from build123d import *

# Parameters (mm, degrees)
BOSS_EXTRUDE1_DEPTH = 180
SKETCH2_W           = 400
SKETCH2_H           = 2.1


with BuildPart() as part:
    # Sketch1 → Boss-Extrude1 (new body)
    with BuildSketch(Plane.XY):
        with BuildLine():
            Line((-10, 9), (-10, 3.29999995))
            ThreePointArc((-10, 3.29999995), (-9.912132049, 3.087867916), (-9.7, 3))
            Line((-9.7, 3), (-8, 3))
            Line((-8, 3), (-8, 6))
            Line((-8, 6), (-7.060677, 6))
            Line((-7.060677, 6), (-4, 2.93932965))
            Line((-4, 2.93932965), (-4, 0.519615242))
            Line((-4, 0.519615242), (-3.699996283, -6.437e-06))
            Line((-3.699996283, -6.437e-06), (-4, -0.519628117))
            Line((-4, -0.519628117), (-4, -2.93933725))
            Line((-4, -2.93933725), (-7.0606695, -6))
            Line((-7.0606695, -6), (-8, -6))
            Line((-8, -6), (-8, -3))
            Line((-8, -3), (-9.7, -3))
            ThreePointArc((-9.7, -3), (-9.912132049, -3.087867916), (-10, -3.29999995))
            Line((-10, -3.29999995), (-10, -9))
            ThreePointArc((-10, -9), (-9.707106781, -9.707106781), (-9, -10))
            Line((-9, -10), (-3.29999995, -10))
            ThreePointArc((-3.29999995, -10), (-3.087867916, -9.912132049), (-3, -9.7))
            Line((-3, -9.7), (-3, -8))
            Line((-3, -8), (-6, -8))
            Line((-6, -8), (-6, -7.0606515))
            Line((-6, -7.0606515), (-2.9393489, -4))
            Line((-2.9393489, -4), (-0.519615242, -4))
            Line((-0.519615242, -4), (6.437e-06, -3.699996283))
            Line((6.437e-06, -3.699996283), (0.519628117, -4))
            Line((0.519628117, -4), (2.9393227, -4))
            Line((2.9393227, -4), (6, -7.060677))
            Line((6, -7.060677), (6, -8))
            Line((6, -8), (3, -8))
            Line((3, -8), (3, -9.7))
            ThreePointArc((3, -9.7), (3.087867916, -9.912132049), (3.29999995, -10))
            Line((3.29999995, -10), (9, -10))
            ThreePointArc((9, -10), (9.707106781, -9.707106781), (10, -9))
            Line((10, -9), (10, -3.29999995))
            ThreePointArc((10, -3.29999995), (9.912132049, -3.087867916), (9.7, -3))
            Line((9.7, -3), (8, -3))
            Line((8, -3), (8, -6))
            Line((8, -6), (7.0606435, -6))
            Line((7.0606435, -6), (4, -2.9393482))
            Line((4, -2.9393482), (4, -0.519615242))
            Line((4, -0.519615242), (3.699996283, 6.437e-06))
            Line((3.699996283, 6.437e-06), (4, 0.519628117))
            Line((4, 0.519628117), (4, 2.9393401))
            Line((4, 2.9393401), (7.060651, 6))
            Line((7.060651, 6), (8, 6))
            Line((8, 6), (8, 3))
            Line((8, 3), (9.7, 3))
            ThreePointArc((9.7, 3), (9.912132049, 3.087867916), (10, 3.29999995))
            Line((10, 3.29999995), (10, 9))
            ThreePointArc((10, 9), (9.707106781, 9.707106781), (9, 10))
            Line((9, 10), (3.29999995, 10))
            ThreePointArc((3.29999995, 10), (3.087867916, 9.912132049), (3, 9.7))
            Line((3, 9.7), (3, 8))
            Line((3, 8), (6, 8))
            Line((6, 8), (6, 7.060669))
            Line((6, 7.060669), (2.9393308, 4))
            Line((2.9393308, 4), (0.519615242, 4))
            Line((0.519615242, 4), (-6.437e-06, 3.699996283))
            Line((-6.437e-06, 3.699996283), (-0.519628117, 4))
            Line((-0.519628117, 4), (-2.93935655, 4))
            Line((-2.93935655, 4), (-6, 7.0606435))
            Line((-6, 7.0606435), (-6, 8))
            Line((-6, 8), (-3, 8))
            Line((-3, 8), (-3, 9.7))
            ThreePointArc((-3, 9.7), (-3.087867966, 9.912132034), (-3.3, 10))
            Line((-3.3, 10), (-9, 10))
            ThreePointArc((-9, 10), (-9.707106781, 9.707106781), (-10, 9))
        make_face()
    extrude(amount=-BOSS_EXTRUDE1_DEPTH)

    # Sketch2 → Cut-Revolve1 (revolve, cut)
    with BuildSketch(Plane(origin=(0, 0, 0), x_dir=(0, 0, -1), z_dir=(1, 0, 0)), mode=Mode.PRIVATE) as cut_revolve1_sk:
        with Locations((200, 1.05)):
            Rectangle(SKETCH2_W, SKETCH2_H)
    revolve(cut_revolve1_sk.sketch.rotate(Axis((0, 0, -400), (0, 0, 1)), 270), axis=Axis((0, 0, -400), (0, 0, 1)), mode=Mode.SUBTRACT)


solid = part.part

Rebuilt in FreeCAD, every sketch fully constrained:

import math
import FreeCAD as App
import Part
import Sketcher
from FreeCAD import Vector
Q = App.Units.Quantity


def add_polygon(sketch, points):
    """Adds a closed chain of lines whose ends are joined by coincident constraints."""
    first, n = sketch.GeometryCount, len(points)
    for a, b in zip(points, points[1:] + points[:1]):
        sketch.addGeometry(Part.LineSegment(App.Vector(*a, 0), App.Vector(*b, 0)), False)
    for i in range(n):
        sketch.addConstraint(Sketcher.Constraint("Coincident", first + i, 2, first + (i + 1) % n, 1))

doc = App.newDocument("Part")
params = doc.addObject("Spreadsheet::Sheet", "Params")
for row, (alias, value) in enumerate([
    ("sketch1_radius", "1 mm"),
    ("sketch1_radius2", "0.3 mm"),
    ("sketch1_width", "3 mm"),
    ("sketch1_width2", "1.7 mm"),
    ("sketch1_width3", "5.7 mm"),
    ("pad1_length", "180 mm"),
    ("sketch2_height", "400 mm"),
    ("sketch2_width", "2.1 mm"),
    ("groove_angle", "360 deg"),
], start=1):
    params.set(f"A{row}", alias)
    params.set(f"B{row}", "=" + value)
    params.setAlias(f"B{row}", alias)

body = doc.addObject("PartDesign::Body", "Body")

sketch1 = doc.addObject("Sketcher::SketchObject", "Sketch")
body.addObject(sketch1)
sketch1.AttachmentSupport = (doc.XY_Plane, [""])
sketch1.MapMode = "FlatFace"
sketch1.addGeometry([
    Part.LineSegment(Vector(-10, 9, 0), Vector(-10, 3.3, 0)),
    Part.ArcOfCircle(Part.Circle(Vector(-9.7, 3.3, 0), Vector(0, 0, 1), 0.3), math.radians(180), math.radians(270)),
    Part.LineSegment(Vector(-9.7, 3, 0), Vector(-8, 3, 0)),
    Part.LineSegment(Vector(-8, 3, 0), Vector(-8, 6, 0)),
    Part.LineSegment(Vector(-8, 6, 0), Vector(-7.06, 6, 0)),
    Part.LineSegment(Vector(-7.06, 6, 0), Vector(-4, 2.94, 0)),
    Part.LineSegment(Vector(-4, 2.94, 0), Vector(-4, 0.52, 0)),
    Part.LineSegment(Vector(-4, 0.52, 0), Vector(-3.7, 0, 0)),
    Part.LineSegment(Vector(-3.7, 0, 0), Vector(-4, -0.52, 0)),
    Part.LineSegment(Vector(-4, -0.52, 0), Vector(-4, -2.94, 0)),
    Part.LineSegment(Vector(-4, -2.94, 0), Vector(-7.06, -6, 0)),
    Part.LineSegment(Vector(-7.06, -6, 0), Vector(-8, -6, 0)),
    Part.LineSegment(Vector(-8, -6, 0), Vector(-8, -3, 0)),
    Part.LineSegment(Vector(-8, -3, 0), Vector(-9.7, -3, 0)),
    Part.ArcOfCircle(Part.Circle(Vector(-9.7, -3.3, 0), Vector(0, 0, 1), 0.3), math.radians(90), math.radians(180)),
    Part.LineSegment(Vector(-10, -3.3, 0), Vector(-10, -9, 0)),
    Part.ArcOfCircle(Part.Circle(Vector(-9, -9, 0), Vector(0, 0, 1), 1), math.radians(-180), math.radians(-90)),
    Part.LineSegment(Vector(-9, -10, 0), Vector(-3.3, -10, 0)),
    Part.ArcOfCircle(Part.Circle(Vector(-3.3, -9.7, 0), Vector(0, 0, 1), 0.3), math.radians(-90), math.radians(0)),
    Part.LineSegment(Vector(-3, -9.7, 0), Vector(-3, -8, 0)),
    Part.LineSegment(Vector(-3, -8, 0), Vector(-6, -8, 0)),
    Part.LineSegment(Vector(-6, -8, 0), Vector(-6, -7.06, 0)),
    Part.LineSegment(Vector(-6, -7.06, 0), Vector(-2.94, -4, 0)),
    Part.LineSegment(Vector(-2.94, -4, 0), Vector(-0.52, -4, 0)),
    Part.LineSegment(Vector(-0.52, -4, 0), Vector(0, -3.7, 0)),
    Part.LineSegment(Vector(0, -3.7, 0), Vector(0.52, -4, 0)),
    Part.LineSegment(Vector(0.52, -4, 0), Vector(2.94, -4, 0)),
    Part.LineSegment(Vector(2.94, -4, 0), Vector(6, -7.06, 0)),
    Part.LineSegment(Vector(6, -7.06, 0), Vector(6, -8, 0)),
    Part.LineSegment(Vector(6, -8, 0), Vector(3, -8, 0)),
    Part.LineSegment(Vector(3, -8, 0), Vector(3, -9.7, 0)),
    Part.ArcOfCircle(Part.Circle(Vector(3.3, -9.7, 0), Vector(0, 0, 1), 0.3), math.radians(180), math.radians(270)),
    Part.LineSegment(Vector(3.3, -10, 0), Vector(9, -10, 0)),
    Part.ArcOfCircle(Part.Circle(Vector(9, -9, 0), Vector(0, 0, 1), 1), math.radians(-90), math.radians(0)),
    Part.LineSegment(Vector(10, -9, 0), Vector(10, -3.3, 0)),
    Part.ArcOfCircle(Part.Circle(Vector(9.7, -3.3, 0), Vector(0, 0, 1), 0.3), math.radians(0), math.radians(90)),
    Part.LineSegment(Vector(9.7, -3, 0), Vector(8, -3, 0)),
    Part.LineSegment(Vector(8, -3, 0), Vector(8, -6, 0)),
    Part.LineSegment(Vector(8, -6, 0), Vector(7.06, -6, 0)),
    Part.LineSegment(Vector(7.06, -6, 0), Vector(4, -2.94, 0)),
    Part.LineSegment(Vector(4, -2.94, 0), Vector(4, -0.52, 0)),
    Part.LineSegment(Vector(4, -0.52, 0), Vector(3.7, 0, 0)),
    Part.LineSegment(Vector(3.7, 0, 0), Vector(4, 0.52, 0)),
    Part.LineSegment(Vector(4, 0.52, 0), Vector(4, 2.94, 0)),
    Part.LineSegment(Vector(4, 2.94, 0), Vector(7.06, 6, 0)),
    Part.LineSegment(Vector(7.06, 6, 0), Vector(8, 6, 0)),
    Part.LineSegment(Vector(8, 6, 0), Vector(8, 3, 0)),
    Part.LineSegment(Vector(8, 3, 0), Vector(9.7, 3, 0)),
    Part.ArcOfCircle(Part.Circle(Vector(9.7, 3.3, 0), Vector(0, 0, 1), 0.3), math.radians(-90), math.radians(0)),
    Part.LineSegment(Vector(10, 3.3, 0), Vector(10, 9, 0)),
    Part.ArcOfCircle(Part.Circle(Vector(9, 9, 0), Vector(0, 0, 1), 1), math.radians(0), math.radians(90)),
    Part.LineSegment(Vector(9, 10, 0), Vector(3.3, 10, 0)),
    Part.ArcOfCircle(Part.Circle(Vector(3.3, 9.7, 0), Vector(0, 0, 1), 0.3), math.radians(90), math.radians(180)),
    Part.LineSegment(Vector(3, 9.7, 0), Vector(3, 8, 0)),
    Part.LineSegment(Vector(3, 8, 0), Vector(6, 8, 0)),
    Part.LineSegment(Vector(6, 8, 0), Vector(6, 7.06, 0)),
    Part.LineSegment(Vector(6, 7.06, 0), Vector(2.94, 4, 0)),
    Part.LineSegment(Vector(2.94, 4, 0), Vector(0.52, 4, 0)),
    Part.LineSegment(Vector(0.52, 4, 0), Vector(0, 3.7, 0)),
    Part.LineSegment(Vector(0, 3.7, 0), Vector(-0.52, 4, 0)),
    Part.LineSegment(Vector(-0.52, 4, 0), Vector(-2.94, 4, 0)),
    Part.LineSegment(Vector(-2.94, 4, 0), Vector(-6, 7.06, 0)),
    Part.LineSegment(Vector(-6, 7.06, 0), Vector(-6, 8, 0)),
    Part.LineSegment(Vector(-6, 8, 0), Vector(-3, 8, 0)),
    Part.LineSegment(Vector(-3, 8, 0), Vector(-3, 9.7, 0)),
    Part.ArcOfCircle(Part.Circle(Vector(-3.3, 9.7, 0), Vector(0, 0, 1), 0.3), math.radians(0), math.radians(90)),
    Part.LineSegment(Vector(-3.3, 10, 0), Vector(-9, 10, 0)),
    Part.ArcOfCircle(Part.Circle(Vector(-9, 9, 0), Vector(0, 0, 1), 1), math.radians(90), math.radians(180)),
], False)
sketch1.addConstraint([
    Sketcher.Constraint("Tangent", 0, 2, 1, 1),
    Sketcher.Constraint("Tangent", 1, 2, 2, 1),
    Sketcher.Constraint("Coincident", 2, 2, 3, 1),
    Sketcher.Constraint("Coincident", 3, 2, 4, 1),
    Sketcher.Constraint("Coincident", 4, 2, 5, 1),
    Sketcher.Constraint("Coincident", 5, 2, 6, 1),
    Sketcher.Constraint("Coincident", 6, 2, 7, 1),
    Sketcher.Constraint("Coincident", 7, 2, 8, 1),
    Sketcher.Constraint("Coincident", 8, 2, 9, 1),
    Sketcher.Constraint("Coincident", 9, 2, 10, 1),
    Sketcher.Constraint("Coincident", 10, 2, 11, 1),
    Sketcher.Constraint("Coincident", 11, 2, 12, 1),
    Sketcher.Constraint("Coincident", 12, 2, 13, 1),
    Sketcher.Constraint("Tangent", 13, 2, 14, 1),
    Sketcher.Constraint("Tangent", 14, 2, 15, 1),
    Sketcher.Constraint("Tangent", 15, 2, 16, 1),
    Sketcher.Constraint("Tangent", 16, 2, 17, 1),
    Sketcher.Constraint("Tangent", 17, 2, 18, 1),
    Sketcher.Constraint("Tangent", 18, 2, 19, 1),
    Sketcher.Constraint("Coincident", 19, 2, 20, 1),
    Sketcher.Constraint("Coincident", 20, 2, 21, 1),
    Sketcher.Constraint("Coincident", 21, 2, 22, 1),
    Sketcher.Constraint("Coincident", 22, 2, 23, 1),
    Sketcher.Constraint("Coincident", 23, 2, 24, 1),
    Sketcher.Constraint("Coincident", 24, 2, 25, 1),
    Sketcher.Constraint("Coincident", 25, 2, 26, 1),
    Sketcher.Constraint("Coincident", 26, 2, 27, 1),
    Sketcher.Constraint("Coincident", 27, 2, 28, 1),
    Sketcher.Constraint("Coincident", 28, 2, 29, 1),
    Sketcher.Constraint("Coincident", 29, 2, 30, 1),
    Sketcher.Constraint("Tangent", 30, 2, 31, 1),
    Sketcher.Constraint("Tangent", 31, 2, 32, 1),
    Sketcher.Constraint("Tangent", 32, 2, 33, 1),
    Sketcher.Constraint("Tangent", 33, 2, 34, 1),
    Sketcher.Constraint("Tangent", 34, 2, 35, 1),
    Sketcher.Constraint("Tangent", 35, 2, 36, 1),
    Sketcher.Constraint("Coincident", 36, 2, 37, 1),
    Sketcher.Constraint("Coincident", 37, 2, 38, 1),
    Sketcher.Constraint("Coincident", 38, 2, 39, 1),
    Sketcher.Constraint("Coincident", 39, 2, 40, 1),
    Sketcher.Constraint("Coincident", 40, 2, 41, 1),
    Sketcher.Constraint("Coincident", 41, 2, 42, 1),
    Sketcher.Constraint("Coincident", 42, 2, 43, 1),
    Sketcher.Constraint("Coincident", 43, 2, 44, 1),
    Sketcher.Constraint("Coincident", 44, 2, 45, 1),
    Sketcher.Constraint("Coincident", 45, 2, 46, 1),
    Sketcher.Constraint("Coincident", 46, 2, 47, 1),
    Sketcher.Constraint("Tangent", 47, 2, 48, 1),
    Sketcher.Constraint("Tangent", 48, 2, 49, 1),
    Sketcher.Constraint("Tangent", 49, 2, 50, 1),
    Sketcher.Constraint("Tangent", 50, 2, 51, 1),
    Sketcher.Constraint("Tangent", 51, 2, 52, 1),
    Sketcher.Constraint("Tangent", 52, 2, 53, 1),
    Sketcher.Constraint("Coincident", 53, 2, 54, 1),
    Sketcher.Constraint("Coincident", 54, 2, 55, 1),
    Sketcher.Constraint("Coincident", 55, 2, 56, 1),
    Sketcher.Constraint("Coincident", 56, 2, 57, 1),
    Sketcher.Constraint("Coincident", 57, 2, 58, 1),
    Sketcher.Constraint("Coincident", 58, 2, 59, 1),
    Sketcher.Constraint("Coincident", 59, 2, 60, 1),
    Sketcher.Constraint("Coincident", 60, 2, 61, 1),
    Sketcher.Constraint("Coincident", 61, 2, 62, 1),
    Sketcher.Constraint("Coincident", 62, 2, 63, 1),
    Sketcher.Constraint("Coincident", 63, 2, 64, 1),
    Sketcher.Constraint("Tangent", 64, 2, 65, 1),
    Sketcher.Constraint("Tangent", 65, 2, 66, 1),
    Sketcher.Constraint("Tangent", 66, 2, 67, 1),
    Sketcher.Constraint("Tangent", 67, 2, 0, 1),
    Sketcher.Constraint("Vertical", 0),
    Sketcher.Constraint("Horizontal", 2),
    Sketcher.Constraint("Vertical", 3),
    Sketcher.Constraint("Horizontal", 4),
    Sketcher.Constraint("Vertical", 6),
    Sketcher.Constraint("Vertical", 9),
    Sketcher.Constraint("Horizontal", 11),
    Sketcher.Constraint("Vertical", 12),
    Sketcher.Constraint("Horizontal", 13),
    Sketcher.Constraint("Vertical", 15),
    Sketcher.Constraint("Horizontal", 17),
    Sketcher.Constraint("Vertical", 19),
    Sketcher.Constraint("Horizontal", 20),
    Sketcher.Constraint("Vertical", 21),
    Sketcher.Constraint("Horizontal", 23),
    Sketcher.Constraint("Horizontal", 26),
    Sketcher.Constraint("Vertical", 28),
    Sketcher.Constraint("Horizontal", 29),
    Sketcher.Constraint("Vertical", 30),
    Sketcher.Constraint("Horizontal", 32),
    Sketcher.Constraint("Vertical", 34),
    Sketcher.Constraint("Horizontal", 36),
    Sketcher.Constraint("Vertical", 37),
    Sketcher.Constraint("Horizontal", 38),
    Sketcher.Constraint("Vertical", 40),
    Sketcher.Constraint("Vertical", 43),
    Sketcher.Constraint("Horizontal", 45),
    Sketcher.Constraint("Vertical", 46),
    Sketcher.Constraint("Horizontal", 47),
    Sketcher.Constraint("Vertical", 49),
    Sketcher.Constraint("Horizontal", 51),
    Sketcher.Constraint("Vertical", 53),
    Sketcher.Constraint("Horizontal", 54),
    Sketcher.Constraint("Vertical", 55),
    Sketcher.Constraint("Horizontal", 57),
    Sketcher.Constraint("Horizontal", 60),
    Sketcher.Constraint("Vertical", 62),
    Sketcher.Constraint("Horizontal", 63),
    Sketcher.Constraint("Vertical", 64),
    Sketcher.Constraint("Horizontal", 66),
    Sketcher.Constraint("Equal", 1, 14),
    Sketcher.Constraint("Equal", 14, 18),
    Sketcher.Constraint("Equal", 18, 31),
    Sketcher.Constraint("Equal", 16, 33),
    Sketcher.Constraint("Equal", 31, 35),
    Sketcher.Constraint("Equal", 35, 48),
    Sketcher.Constraint("Equal", 33, 50),
    Sketcher.Constraint("Equal", 48, 52),
    Sketcher.Constraint("Equal", 52, 65),
    Sketcher.Constraint("Equal", 50, 67),
    Sketcher.Constraint("Symmetric", 1, 3, 35, 3, -1, 1),
    Sketcher.Constraint("Symmetric", 14, 3, 48, 3, -1, 1),
    Sketcher.Constraint("Symmetric", 18, 3, 52, 3, -1, 1),
    Sketcher.Constraint("Symmetric", 31, 3, 65, 3, -1, 1),
    Sketcher.Constraint("Symmetric", 3, 2, 37, 2, -1, 1),
    Sketcher.Constraint("Symmetric", 6, 2, 40, 2, -1, 1),
    Sketcher.Constraint("Symmetric", 7, 2, 41, 2, -1, 1),
    Sketcher.Constraint("Symmetric", 8, 2, 42, 2, -1, 1),
    Sketcher.Constraint("Symmetric", 11, 2, 45, 2, -1, 1),
    Sketcher.Constraint("Symmetric", 20, 2, 54, 2, -1, 1),
    Sketcher.Constraint("Symmetric", 23, 2, 57, 2, -1, 1),
    Sketcher.Constraint("Symmetric", 24, 2, 58, 2, -1, 1),
    Sketcher.Constraint("Symmetric", 25, 2, 59, 2, -1, 1),
    Sketcher.Constraint("Symmetric", 28, 2, 62, 2, -1, 1),
    Sketcher.Constraint("Symmetric", 18, 3, 31, 3, -2),
    Sketcher.Constraint("Symmetric", 14, 3, 35, 3, -2),
    Sketcher.Constraint("Symmetric", 20, 2, 28, 2, -2),
    Sketcher.Constraint("Symmetric", 11, 2, 37, 2, -2),
    Sketcher.Constraint("Symmetric", 5, 2, 9, 2, -1),
    Sketcher.Constraint("Symmetric", 26, 2, 56, 2, -1),
    Sketcher.Constraint("Parallel", 10, 22),
    Sketcher.Constraint("Perpendicular", 7, 24),
    Sketcher.Constraint("Perpendicular", 8, 25),
    Sketcher.Constraint("Perpendicular", 22, 27),
    Sketcher.Constraint("Parallel", 27, 39),
    Sketcher.Constraint("Perpendicular", 27, 44),
    Sketcher.Constraint("Parallel", 44, 56),
    Sketcher.Constraint("Perpendicular", 56, 61),
    Sketcher.Constraint("Equal", 66, 0),
    Sketcher.Constraint("Equal", 63, 3),
    Sketcher.Constraint("Equal", 57, 6),
    Sketcher.Constraint("Equal", 47, 19),
    Sketcher.Constraint("Equal", 45, 21),
    Sketcher.Constraint("Equal", 4, 28),
    Sketcher.Constraint("Equal", 23, 40),
    Sketcher.Constraint("Equal", 11, 55),
    Sketcher.Constraint("Equal", 38, 62),
    Sketcher.Constraint("Equal", 7, 8),
    Sketcher.Constraint("Equal", 8, 24),
    Sketcher.Constraint("Radius", 16, Q("1 mm")),
    Sketcher.Constraint("Radius", 1, Q("0.3 mm")),
    Sketcher.Constraint("DistanceX", 20, 2, 20, 1, Q("3 mm")),
    Sketcher.Constraint("Angle", 7, Q("-60 deg")),
    Sketcher.Constraint("Angle", 22, Q("45.000004 deg")),
    Sketcher.Constraint("DistanceX", 2, 1, 2, 2, Q("1.7 mm")),
    Sketcher.Constraint("DistanceX", 17, 1, 17, 2, Q("5.7 mm")),
    Sketcher.Constraint("DistanceX", 16, 3, -1, 1, Q("9 mm")),
    Sketcher.Constraint("DistanceY", 16, 3, -1, 1, Q("9 mm")),
    Sketcher.Constraint("DistanceX", 5, 2, -1, 1, Q("4 mm")),
    Sketcher.Constraint("DistanceY", 22, 2, -1, 1, Q("4 mm")),
    Sketcher.Constraint("DistanceX", 11, 2, 11, 1, Q("0.93933 mm")),
    Sketcher.Constraint("DistanceX", 45, 1, 45, 2, Q("0.939349 mm")),
    Sketcher.Constraint("DistanceX", 60, 2, 60, 1, Q("2.419728 mm")),
    Sketcher.Constraint("DistanceX", 23, 1, 23, 2, Q("2.419734 mm")),
])
sketch1.setExpression("Constraints[157]", "Params.sketch1_radius")
sketch1.setExpression("Constraints[158]", "Params.sketch1_radius2")
sketch1.setExpression("Constraints[159]", "Params.sketch1_width")
sketch1.setExpression("Constraints[162]", "Params.sketch1_width2")
sketch1.setExpression("Constraints[163]", "Params.sketch1_width3")
pad1 = doc.addObject("PartDesign::Pad", "Pad")
body.addObject(pad1)
pad1.Profile = sketch1
pad1.setExpression("Length", "Params.pad1_length")
pad1.Reversed = True

sketch2 = doc.addObject("Sketcher::SketchObject", "Sketch001")
body.addObject(sketch2)
sketch2.AttachmentSupport = (doc.YZ_Plane, [""])
sketch2.MapMode = "FlatFace"
add_polygon(sketch2, [(2.1, 0), (0, 0), (0, -400), (2.1, -400)])
sketch2.addConstraint([
    Sketcher.Constraint("Horizontal", 0),
    Sketcher.Constraint("Vertical", 1),
    Sketcher.Constraint("Horizontal", 2),
    Sketcher.Constraint("Vertical", 3),
    Sketcher.Constraint("Coincident", 0, 2, -1, 1),
    Sketcher.Constraint("DistanceY", 1, 2, 1, 1, Q("400 mm")),
    Sketcher.Constraint("DistanceX", 0, 2, 0, 1, Q("2.1 mm")),
])
sketch2.setExpression("Constraints[9]", "Params.sketch2_height")
sketch2.setExpression("Constraints[10]", "Params.sketch2_width")
groove = doc.addObject("PartDesign::Groove", "Groove")
body.addObject(groove)
groove.Profile = sketch2
groove.ReferenceAxis = (sketch2, ["V_Axis"])
groove.setExpression("Angle", "Params.groove_angle")

doc.recompute()
